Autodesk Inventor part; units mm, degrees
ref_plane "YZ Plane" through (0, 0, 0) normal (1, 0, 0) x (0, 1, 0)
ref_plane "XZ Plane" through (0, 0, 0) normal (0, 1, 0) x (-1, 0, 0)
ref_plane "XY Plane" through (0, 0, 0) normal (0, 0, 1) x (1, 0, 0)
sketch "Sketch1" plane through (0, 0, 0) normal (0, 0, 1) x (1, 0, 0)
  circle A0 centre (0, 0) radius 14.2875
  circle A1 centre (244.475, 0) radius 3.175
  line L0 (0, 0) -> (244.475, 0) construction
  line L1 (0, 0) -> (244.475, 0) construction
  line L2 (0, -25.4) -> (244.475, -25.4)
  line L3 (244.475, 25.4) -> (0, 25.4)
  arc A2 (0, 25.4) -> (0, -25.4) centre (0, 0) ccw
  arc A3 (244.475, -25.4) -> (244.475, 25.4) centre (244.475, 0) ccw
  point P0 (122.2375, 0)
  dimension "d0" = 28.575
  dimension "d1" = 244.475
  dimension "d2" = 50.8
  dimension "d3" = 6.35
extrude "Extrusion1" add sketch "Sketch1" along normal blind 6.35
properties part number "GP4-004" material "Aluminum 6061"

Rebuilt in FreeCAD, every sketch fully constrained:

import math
import FreeCAD as App
import Part
import Sketcher

V = App.Vector
Q = App.Units.Quantity

doc = App.newDocument("Part")
body = doc.addObject("PartDesign::Body", "Body")

sketch1 = doc.addObject("Sketcher::SketchObject", "Sketch")
body.addObject(sketch1)
sketch1.AttachmentSupport = (doc.XY_Plane, [""])
sketch1.MapMode = "FlatFace"
sketch1.addGeometry([
    Part.ArcOfCircle(Part.Circle(V(0, 0, 0), V(0, 0, 1), 25.4), math.radians(90), math.radians(270)),
    Part.LineSegment(V(0, -25.4, 0), V(244.5, -25.4, 0)),
    Part.ArcOfCircle(Part.Circle(V(244.5, 0, 0), V(0, 0, 1), 25.4), math.radians(-90), math.radians(90)),
    Part.LineSegment(V(244.5, 25.4, 0), V(0, 25.4, 0)),
    Part.Circle(V(0, 0, 0), V(0, 0, 1), 14.3),
    Part.Circle(V(244.5, 0, 0), V(0, 0, 1), 3.2),
], False)
sketch1.addConstraint([
    Sketcher.Constraint("Tangent", 0, 2, 1, 1),
    Sketcher.Constraint("Tangent", 1, 2, 2, 1),
    Sketcher.Constraint("Tangent", 2, 2, 3, 1),
    Sketcher.Constraint("Tangent", 3, 2, 0, 1),
    Sketcher.Constraint("Horizontal", 1),
    Sketcher.Constraint("Horizontal", 3),
    Sketcher.Constraint("Coincident", 0, 3, -1, 1),
    Sketcher.Constraint("Coincident", 4, 3, -1, 1),
    Sketcher.Constraint("Coincident", 5, 3, 2, 3),
    Sketcher.Constraint("Radius", 0, Q("1 in")),
    Sketcher.Constraint("Diameter", 5, Q("0.25 in")),
    Sketcher.Constraint("Diameter", 4, Q("1.125 in")),
    Sketcher.Constraint("DistanceX", 1, 1, 1, 2, Q("9.625 in")),
])
pad1 = doc.addObject("PartDesign::Pad", "Pad")
body.addObject(pad1)
pad1.Profile = sketch1
pad1.Length = Q("0.25 in")

doc.recompute()
